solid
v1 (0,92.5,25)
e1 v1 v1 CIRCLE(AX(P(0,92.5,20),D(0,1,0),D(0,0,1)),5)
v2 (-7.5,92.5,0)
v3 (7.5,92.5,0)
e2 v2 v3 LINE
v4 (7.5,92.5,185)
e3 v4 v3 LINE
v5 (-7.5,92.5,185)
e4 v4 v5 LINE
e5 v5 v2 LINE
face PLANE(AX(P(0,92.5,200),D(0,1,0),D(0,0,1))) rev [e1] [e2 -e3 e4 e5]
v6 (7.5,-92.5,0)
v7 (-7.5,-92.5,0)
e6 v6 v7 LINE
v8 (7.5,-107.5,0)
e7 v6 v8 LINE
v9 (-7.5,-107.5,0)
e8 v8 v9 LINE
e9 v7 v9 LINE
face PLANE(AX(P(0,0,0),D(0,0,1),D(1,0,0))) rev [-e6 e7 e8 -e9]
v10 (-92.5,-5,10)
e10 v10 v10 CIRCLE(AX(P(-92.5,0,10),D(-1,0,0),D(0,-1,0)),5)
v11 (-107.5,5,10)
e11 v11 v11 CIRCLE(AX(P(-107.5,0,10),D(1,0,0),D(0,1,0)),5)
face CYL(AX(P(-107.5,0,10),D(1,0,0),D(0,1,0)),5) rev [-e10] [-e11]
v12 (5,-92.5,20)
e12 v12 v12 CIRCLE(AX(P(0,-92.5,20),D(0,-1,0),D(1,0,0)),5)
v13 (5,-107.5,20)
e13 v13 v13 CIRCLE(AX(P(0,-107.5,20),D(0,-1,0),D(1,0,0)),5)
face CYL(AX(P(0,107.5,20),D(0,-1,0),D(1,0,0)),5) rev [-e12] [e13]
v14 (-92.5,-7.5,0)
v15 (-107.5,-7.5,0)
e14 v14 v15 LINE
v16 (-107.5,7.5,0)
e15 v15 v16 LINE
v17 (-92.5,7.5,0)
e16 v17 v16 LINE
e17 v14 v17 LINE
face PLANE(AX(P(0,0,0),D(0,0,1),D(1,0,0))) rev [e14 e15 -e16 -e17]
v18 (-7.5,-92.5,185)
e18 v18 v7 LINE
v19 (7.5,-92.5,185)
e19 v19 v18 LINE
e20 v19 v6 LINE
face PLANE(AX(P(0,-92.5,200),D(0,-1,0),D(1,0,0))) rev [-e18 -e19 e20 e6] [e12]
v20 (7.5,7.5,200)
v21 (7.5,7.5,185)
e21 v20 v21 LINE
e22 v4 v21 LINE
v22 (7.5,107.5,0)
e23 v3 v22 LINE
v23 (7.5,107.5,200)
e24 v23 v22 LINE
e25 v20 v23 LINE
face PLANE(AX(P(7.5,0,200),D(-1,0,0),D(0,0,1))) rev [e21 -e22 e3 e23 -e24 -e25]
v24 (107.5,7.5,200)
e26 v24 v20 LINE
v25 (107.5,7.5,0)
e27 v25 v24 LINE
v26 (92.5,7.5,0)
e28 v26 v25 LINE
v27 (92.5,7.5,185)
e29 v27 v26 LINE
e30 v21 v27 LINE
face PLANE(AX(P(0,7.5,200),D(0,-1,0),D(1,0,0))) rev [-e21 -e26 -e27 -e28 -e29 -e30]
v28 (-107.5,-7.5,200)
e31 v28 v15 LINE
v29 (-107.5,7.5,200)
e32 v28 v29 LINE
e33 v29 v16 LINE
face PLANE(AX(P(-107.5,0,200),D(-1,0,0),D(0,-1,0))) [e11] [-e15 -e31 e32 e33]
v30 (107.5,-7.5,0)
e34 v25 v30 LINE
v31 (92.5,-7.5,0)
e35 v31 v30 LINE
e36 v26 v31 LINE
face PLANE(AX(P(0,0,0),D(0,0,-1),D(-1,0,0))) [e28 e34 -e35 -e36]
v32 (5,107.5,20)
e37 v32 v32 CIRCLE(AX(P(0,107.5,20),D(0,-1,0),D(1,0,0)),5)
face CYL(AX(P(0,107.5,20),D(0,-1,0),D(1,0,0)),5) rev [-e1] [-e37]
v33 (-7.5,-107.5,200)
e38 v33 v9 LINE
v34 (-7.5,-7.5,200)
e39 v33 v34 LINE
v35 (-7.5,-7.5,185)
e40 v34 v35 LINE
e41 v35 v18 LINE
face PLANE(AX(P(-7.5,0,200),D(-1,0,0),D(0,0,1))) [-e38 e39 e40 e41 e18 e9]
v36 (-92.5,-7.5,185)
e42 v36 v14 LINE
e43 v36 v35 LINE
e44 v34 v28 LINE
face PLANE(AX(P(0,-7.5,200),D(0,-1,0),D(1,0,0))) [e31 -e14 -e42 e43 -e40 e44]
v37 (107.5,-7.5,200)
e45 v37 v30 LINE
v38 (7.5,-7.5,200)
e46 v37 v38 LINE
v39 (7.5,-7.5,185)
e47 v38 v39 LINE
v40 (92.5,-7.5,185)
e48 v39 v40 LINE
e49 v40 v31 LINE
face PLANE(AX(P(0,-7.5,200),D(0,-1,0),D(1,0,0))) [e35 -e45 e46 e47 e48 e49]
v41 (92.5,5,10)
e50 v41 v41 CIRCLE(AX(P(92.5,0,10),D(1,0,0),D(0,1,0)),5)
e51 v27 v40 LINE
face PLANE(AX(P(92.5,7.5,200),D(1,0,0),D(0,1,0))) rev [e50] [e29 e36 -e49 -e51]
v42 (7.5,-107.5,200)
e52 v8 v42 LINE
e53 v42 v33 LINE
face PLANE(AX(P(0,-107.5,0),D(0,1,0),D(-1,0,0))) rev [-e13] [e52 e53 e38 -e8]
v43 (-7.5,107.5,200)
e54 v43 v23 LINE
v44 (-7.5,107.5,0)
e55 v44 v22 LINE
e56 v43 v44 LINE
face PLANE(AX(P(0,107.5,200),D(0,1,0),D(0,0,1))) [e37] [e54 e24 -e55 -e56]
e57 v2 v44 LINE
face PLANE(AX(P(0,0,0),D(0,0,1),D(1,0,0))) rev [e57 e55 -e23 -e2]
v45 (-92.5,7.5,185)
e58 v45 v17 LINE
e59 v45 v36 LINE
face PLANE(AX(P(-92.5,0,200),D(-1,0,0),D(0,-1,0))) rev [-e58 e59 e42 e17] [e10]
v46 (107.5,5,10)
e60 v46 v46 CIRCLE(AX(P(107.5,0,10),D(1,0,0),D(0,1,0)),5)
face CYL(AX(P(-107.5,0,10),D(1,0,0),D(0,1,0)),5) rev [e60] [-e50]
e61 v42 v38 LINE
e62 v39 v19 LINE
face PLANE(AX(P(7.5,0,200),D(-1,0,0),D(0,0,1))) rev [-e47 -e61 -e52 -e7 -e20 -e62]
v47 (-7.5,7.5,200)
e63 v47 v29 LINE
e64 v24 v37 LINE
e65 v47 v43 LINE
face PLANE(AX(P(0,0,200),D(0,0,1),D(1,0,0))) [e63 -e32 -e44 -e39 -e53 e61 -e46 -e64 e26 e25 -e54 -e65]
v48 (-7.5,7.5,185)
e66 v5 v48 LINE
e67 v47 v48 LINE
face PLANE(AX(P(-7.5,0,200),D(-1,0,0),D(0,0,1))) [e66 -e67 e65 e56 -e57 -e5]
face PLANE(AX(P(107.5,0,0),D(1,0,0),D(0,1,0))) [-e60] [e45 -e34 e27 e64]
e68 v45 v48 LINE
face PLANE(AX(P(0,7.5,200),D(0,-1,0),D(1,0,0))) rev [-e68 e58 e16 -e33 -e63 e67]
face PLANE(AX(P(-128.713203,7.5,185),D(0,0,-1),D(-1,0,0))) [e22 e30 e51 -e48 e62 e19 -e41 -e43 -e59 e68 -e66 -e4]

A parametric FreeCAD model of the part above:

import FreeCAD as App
import Part
import Sketcher

V = App.Vector
Q = App.Units.Quantity


def add_polygon(sketch, points):
    """Adds a closed chain of lines whose ends are joined by coincident constraints."""
    first, n = sketch.GeometryCount, len(points)
    for a, b in zip(points, points[1:] + points[:1]):
        sketch.addGeometry(Part.LineSegment(App.Vector(*a, 0), App.Vector(*b, 0)), False)
    for i in range(n):
        sketch.addConstraint(Sketcher.Constraint("Coincident", first + i, 2, first + (i + 1) % n, 1))

doc = App.newDocument("Part")
body = doc.addObject("PartDesign::Body", "Body")
body.AllowCompound = True

sketch1 = doc.addObject("Sketcher::SketchObject", "Sketch")
body.addObject(sketch1)
sketch1.AttachmentSupport = (doc.XY_Plane, [""])
sketch1.MapMode = "FlatFace"
add_polygon(sketch1, [(8, 108), (-8, 108), (-8, 92), (8, 92)])
add_polygon(sketch1, [(-92, -8), (-92, 8), (-108, 8), (-108, -8)])
add_polygon(sketch1, [(8, -92), (-8, -92), (-8, -108), (8, -108)])
add_polygon(sketch1, [(92, 8), (92, -8), (108, -8), (108, 8)])
sketch1.addConstraint([
    Sketcher.Constraint("Horizontal", 0),
    Sketcher.Constraint("Vertical", 1),
    Sketcher.Constraint("Horizontal", 2),
    Sketcher.Constraint("Vertical", 3),
    Sketcher.Constraint("Vertical", 4),
    Sketcher.Constraint("Horizontal", 5),
    Sketcher.Constraint("Vertical", 6),
    Sketcher.Constraint("Horizontal", 7),
    Sketcher.Constraint("Horizontal", 8),
    Sketcher.Constraint("Vertical", 9),
    Sketcher.Constraint("Horizontal", 10),
    Sketcher.Constraint("Vertical", 11),
    Sketcher.Constraint("Vertical", 12),
    Sketcher.Constraint("Horizontal", 13),
    Sketcher.Constraint("Vertical", 14),
    Sketcher.Constraint("Horizontal", 15),
    Sketcher.Constraint("Symmetric", 2, 2, 8, 2, -1, 1),
    Sketcher.Constraint("Symmetric", 0, 2, 10, 2, -1, 1),
    Sketcher.Constraint("Symmetric", 4, 2, 12, 2, -1, 1),
    Sketcher.Constraint("Symmetric", 6, 2, 14, 2, -1, 1),
    Sketcher.Constraint("Horizontal", 7, 2, 12, 2),
    Sketcher.Constraint("Vertical", 1, 2, 8, 2),
    Sketcher.Constraint("Equal", 2, 5),
    Sketcher.Constraint("Equal", 15, 1),
    Sketcher.Constraint("Equal", 3, 4),
    Sketcher.Constraint("DistanceX", 0, 2, 0, 1, Q("15 mm")),
    Sketcher.Constraint("DistanceX", 4, 2, 1, 2, Q("85 mm")),
    Sketcher.Constraint("DistanceY", 4, 2, 1, 2, Q("85 mm")),
])
pad1 = doc.addObject("PartDesign::Pad", "Pad")
body.addObject(pad1)
pad1.Profile = sketch1
pad1.Length = 200

sketch2 = doc.addObject("Sketcher::SketchObject", "Sketch001")
body.addObject(sketch2)
sketch2.AttachmentSupport = (doc.XZ_Plane, [""])
sketch2.MapMode = "FlatFace"
sketch2.AttachmentOffset = App.Placement(V(0, 0, 107.5), App.Rotation())
add_polygon(sketch2, [(-8, 200), (-8, 185), (8, 185), (8, 200)])
sketch2.addConstraint([
    Sketcher.Constraint("Vertical", 0),
    Sketcher.Constraint("Horizontal", 1),
    Sketcher.Constraint("Vertical", 2),
    Sketcher.Constraint("Horizontal", 3),
    Sketcher.Constraint("Equal", 3, 0),
    Sketcher.Constraint("DistanceX", 1, 1, 1, 2, Q("15 mm")),
    Sketcher.Constraint("DistanceY", -1, 1, 0, 2, Q("185 mm")),
    Sketcher.Constraint("DistanceX", 0, 2, -1, 1, Q("7.5 mm")),
])
pad2 = doc.addObject("PartDesign::Pad", "Pad001")
body.addObject(pad2)
pad2.Profile = sketch2
pad2.Length = 215
pad2.Reversed = True

sketch3 = doc.addObject("Sketcher::SketchObject", "Sketch002")
body.addObject(sketch3)
sketch3.AttachmentSupport = (doc.YZ_Plane, [""])
sketch3.MapMode = "FlatFace"
sketch3.AttachmentOffset = App.Placement(V(0, 0, 107.5), App.Rotation())
add_polygon(sketch3, [(8, 200), (-8, 200), (-8, 185), (8, 185)])
sketch3.addConstraint([
    Sketcher.Constraint("Horizontal", 0),
    Sketcher.Constraint("Vertical", 1),
    Sketcher.Constraint("Horizontal", 2),
    Sketcher.Constraint("Vertical", 3),
    Sketcher.Constraint("Equal", 2, 1),
    Sketcher.Constraint("DistanceX", 0, 2, 0, 1, Q("15 mm")),
    Sketcher.Constraint("DistanceY", -1, 1, 0, 2, Q("200 mm")),
    Sketcher.Constraint("DistanceX", 0, 2, -1, 1, Q("7.5 mm")),
])
pad3 = doc.addObject("PartDesign::Pad", "Pad002")
body.addObject(pad3)
pad3.Profile = sketch3
pad3.Length = 215
pad3.Reversed = True

sketch4 = doc.addObject("Sketcher::SketchObject", "Sketch003")
body.addObject(sketch4)
sketch4.AttachmentSupport = (doc.YZ_Plane, [""])
sketch4.MapMode = "FlatFace"
sketch4.AttachmentOffset = App.Placement(V(0, 0, 107.5), App.Rotation())
sketch4.addGeometry(Part.Circle(V(0, 10, 0), V(0, 0, 1), 5), False)
sketch4.addConstraint([
    Sketcher.Constraint("PointOnObject", 0, 3, -2),
    Sketcher.Constraint("Diameter", 0, Q("10 mm")),
    Sketcher.Constraint("DistanceY", -1, 1, 0, 3, Q("10 mm")),
])
pocket1 = doc.addObject("PartDesign::Pocket", "Pocket")
body.addObject(pocket1)
pocket1.Profile = sketch4
pocket1.Type = "ThroughAll"

sketch5 = doc.addObject("Sketcher::SketchObject", "Sketch004")
body.addObject(sketch5)
sketch5.AttachmentSupport = (doc.XZ_Plane, [""])
sketch5.MapMode = "FlatFace"
sketch5.AttachmentOffset = App.Placement(V(0, 0, 107.5), App.Rotation())
sketch5.addGeometry(Part.Circle(V(0, 20, 0), V(0, 0, 1), 5), False)
sketch5.addConstraint([
    Sketcher.Constraint("PointOnObject", 0, 3, -2),
    Sketcher.Constraint("Diameter", 0, Q("10 mm")),
    Sketcher.Constraint("DistanceY", -1, 1, 0, 3, Q("20 mm")),
])
pocket2 = doc.addObject("PartDesign::Pocket", "Pocket001")
body.addObject(pocket2)
pocket2.Profile = sketch5
pocket2.Type = "ThroughAll"

doc.recompute()
